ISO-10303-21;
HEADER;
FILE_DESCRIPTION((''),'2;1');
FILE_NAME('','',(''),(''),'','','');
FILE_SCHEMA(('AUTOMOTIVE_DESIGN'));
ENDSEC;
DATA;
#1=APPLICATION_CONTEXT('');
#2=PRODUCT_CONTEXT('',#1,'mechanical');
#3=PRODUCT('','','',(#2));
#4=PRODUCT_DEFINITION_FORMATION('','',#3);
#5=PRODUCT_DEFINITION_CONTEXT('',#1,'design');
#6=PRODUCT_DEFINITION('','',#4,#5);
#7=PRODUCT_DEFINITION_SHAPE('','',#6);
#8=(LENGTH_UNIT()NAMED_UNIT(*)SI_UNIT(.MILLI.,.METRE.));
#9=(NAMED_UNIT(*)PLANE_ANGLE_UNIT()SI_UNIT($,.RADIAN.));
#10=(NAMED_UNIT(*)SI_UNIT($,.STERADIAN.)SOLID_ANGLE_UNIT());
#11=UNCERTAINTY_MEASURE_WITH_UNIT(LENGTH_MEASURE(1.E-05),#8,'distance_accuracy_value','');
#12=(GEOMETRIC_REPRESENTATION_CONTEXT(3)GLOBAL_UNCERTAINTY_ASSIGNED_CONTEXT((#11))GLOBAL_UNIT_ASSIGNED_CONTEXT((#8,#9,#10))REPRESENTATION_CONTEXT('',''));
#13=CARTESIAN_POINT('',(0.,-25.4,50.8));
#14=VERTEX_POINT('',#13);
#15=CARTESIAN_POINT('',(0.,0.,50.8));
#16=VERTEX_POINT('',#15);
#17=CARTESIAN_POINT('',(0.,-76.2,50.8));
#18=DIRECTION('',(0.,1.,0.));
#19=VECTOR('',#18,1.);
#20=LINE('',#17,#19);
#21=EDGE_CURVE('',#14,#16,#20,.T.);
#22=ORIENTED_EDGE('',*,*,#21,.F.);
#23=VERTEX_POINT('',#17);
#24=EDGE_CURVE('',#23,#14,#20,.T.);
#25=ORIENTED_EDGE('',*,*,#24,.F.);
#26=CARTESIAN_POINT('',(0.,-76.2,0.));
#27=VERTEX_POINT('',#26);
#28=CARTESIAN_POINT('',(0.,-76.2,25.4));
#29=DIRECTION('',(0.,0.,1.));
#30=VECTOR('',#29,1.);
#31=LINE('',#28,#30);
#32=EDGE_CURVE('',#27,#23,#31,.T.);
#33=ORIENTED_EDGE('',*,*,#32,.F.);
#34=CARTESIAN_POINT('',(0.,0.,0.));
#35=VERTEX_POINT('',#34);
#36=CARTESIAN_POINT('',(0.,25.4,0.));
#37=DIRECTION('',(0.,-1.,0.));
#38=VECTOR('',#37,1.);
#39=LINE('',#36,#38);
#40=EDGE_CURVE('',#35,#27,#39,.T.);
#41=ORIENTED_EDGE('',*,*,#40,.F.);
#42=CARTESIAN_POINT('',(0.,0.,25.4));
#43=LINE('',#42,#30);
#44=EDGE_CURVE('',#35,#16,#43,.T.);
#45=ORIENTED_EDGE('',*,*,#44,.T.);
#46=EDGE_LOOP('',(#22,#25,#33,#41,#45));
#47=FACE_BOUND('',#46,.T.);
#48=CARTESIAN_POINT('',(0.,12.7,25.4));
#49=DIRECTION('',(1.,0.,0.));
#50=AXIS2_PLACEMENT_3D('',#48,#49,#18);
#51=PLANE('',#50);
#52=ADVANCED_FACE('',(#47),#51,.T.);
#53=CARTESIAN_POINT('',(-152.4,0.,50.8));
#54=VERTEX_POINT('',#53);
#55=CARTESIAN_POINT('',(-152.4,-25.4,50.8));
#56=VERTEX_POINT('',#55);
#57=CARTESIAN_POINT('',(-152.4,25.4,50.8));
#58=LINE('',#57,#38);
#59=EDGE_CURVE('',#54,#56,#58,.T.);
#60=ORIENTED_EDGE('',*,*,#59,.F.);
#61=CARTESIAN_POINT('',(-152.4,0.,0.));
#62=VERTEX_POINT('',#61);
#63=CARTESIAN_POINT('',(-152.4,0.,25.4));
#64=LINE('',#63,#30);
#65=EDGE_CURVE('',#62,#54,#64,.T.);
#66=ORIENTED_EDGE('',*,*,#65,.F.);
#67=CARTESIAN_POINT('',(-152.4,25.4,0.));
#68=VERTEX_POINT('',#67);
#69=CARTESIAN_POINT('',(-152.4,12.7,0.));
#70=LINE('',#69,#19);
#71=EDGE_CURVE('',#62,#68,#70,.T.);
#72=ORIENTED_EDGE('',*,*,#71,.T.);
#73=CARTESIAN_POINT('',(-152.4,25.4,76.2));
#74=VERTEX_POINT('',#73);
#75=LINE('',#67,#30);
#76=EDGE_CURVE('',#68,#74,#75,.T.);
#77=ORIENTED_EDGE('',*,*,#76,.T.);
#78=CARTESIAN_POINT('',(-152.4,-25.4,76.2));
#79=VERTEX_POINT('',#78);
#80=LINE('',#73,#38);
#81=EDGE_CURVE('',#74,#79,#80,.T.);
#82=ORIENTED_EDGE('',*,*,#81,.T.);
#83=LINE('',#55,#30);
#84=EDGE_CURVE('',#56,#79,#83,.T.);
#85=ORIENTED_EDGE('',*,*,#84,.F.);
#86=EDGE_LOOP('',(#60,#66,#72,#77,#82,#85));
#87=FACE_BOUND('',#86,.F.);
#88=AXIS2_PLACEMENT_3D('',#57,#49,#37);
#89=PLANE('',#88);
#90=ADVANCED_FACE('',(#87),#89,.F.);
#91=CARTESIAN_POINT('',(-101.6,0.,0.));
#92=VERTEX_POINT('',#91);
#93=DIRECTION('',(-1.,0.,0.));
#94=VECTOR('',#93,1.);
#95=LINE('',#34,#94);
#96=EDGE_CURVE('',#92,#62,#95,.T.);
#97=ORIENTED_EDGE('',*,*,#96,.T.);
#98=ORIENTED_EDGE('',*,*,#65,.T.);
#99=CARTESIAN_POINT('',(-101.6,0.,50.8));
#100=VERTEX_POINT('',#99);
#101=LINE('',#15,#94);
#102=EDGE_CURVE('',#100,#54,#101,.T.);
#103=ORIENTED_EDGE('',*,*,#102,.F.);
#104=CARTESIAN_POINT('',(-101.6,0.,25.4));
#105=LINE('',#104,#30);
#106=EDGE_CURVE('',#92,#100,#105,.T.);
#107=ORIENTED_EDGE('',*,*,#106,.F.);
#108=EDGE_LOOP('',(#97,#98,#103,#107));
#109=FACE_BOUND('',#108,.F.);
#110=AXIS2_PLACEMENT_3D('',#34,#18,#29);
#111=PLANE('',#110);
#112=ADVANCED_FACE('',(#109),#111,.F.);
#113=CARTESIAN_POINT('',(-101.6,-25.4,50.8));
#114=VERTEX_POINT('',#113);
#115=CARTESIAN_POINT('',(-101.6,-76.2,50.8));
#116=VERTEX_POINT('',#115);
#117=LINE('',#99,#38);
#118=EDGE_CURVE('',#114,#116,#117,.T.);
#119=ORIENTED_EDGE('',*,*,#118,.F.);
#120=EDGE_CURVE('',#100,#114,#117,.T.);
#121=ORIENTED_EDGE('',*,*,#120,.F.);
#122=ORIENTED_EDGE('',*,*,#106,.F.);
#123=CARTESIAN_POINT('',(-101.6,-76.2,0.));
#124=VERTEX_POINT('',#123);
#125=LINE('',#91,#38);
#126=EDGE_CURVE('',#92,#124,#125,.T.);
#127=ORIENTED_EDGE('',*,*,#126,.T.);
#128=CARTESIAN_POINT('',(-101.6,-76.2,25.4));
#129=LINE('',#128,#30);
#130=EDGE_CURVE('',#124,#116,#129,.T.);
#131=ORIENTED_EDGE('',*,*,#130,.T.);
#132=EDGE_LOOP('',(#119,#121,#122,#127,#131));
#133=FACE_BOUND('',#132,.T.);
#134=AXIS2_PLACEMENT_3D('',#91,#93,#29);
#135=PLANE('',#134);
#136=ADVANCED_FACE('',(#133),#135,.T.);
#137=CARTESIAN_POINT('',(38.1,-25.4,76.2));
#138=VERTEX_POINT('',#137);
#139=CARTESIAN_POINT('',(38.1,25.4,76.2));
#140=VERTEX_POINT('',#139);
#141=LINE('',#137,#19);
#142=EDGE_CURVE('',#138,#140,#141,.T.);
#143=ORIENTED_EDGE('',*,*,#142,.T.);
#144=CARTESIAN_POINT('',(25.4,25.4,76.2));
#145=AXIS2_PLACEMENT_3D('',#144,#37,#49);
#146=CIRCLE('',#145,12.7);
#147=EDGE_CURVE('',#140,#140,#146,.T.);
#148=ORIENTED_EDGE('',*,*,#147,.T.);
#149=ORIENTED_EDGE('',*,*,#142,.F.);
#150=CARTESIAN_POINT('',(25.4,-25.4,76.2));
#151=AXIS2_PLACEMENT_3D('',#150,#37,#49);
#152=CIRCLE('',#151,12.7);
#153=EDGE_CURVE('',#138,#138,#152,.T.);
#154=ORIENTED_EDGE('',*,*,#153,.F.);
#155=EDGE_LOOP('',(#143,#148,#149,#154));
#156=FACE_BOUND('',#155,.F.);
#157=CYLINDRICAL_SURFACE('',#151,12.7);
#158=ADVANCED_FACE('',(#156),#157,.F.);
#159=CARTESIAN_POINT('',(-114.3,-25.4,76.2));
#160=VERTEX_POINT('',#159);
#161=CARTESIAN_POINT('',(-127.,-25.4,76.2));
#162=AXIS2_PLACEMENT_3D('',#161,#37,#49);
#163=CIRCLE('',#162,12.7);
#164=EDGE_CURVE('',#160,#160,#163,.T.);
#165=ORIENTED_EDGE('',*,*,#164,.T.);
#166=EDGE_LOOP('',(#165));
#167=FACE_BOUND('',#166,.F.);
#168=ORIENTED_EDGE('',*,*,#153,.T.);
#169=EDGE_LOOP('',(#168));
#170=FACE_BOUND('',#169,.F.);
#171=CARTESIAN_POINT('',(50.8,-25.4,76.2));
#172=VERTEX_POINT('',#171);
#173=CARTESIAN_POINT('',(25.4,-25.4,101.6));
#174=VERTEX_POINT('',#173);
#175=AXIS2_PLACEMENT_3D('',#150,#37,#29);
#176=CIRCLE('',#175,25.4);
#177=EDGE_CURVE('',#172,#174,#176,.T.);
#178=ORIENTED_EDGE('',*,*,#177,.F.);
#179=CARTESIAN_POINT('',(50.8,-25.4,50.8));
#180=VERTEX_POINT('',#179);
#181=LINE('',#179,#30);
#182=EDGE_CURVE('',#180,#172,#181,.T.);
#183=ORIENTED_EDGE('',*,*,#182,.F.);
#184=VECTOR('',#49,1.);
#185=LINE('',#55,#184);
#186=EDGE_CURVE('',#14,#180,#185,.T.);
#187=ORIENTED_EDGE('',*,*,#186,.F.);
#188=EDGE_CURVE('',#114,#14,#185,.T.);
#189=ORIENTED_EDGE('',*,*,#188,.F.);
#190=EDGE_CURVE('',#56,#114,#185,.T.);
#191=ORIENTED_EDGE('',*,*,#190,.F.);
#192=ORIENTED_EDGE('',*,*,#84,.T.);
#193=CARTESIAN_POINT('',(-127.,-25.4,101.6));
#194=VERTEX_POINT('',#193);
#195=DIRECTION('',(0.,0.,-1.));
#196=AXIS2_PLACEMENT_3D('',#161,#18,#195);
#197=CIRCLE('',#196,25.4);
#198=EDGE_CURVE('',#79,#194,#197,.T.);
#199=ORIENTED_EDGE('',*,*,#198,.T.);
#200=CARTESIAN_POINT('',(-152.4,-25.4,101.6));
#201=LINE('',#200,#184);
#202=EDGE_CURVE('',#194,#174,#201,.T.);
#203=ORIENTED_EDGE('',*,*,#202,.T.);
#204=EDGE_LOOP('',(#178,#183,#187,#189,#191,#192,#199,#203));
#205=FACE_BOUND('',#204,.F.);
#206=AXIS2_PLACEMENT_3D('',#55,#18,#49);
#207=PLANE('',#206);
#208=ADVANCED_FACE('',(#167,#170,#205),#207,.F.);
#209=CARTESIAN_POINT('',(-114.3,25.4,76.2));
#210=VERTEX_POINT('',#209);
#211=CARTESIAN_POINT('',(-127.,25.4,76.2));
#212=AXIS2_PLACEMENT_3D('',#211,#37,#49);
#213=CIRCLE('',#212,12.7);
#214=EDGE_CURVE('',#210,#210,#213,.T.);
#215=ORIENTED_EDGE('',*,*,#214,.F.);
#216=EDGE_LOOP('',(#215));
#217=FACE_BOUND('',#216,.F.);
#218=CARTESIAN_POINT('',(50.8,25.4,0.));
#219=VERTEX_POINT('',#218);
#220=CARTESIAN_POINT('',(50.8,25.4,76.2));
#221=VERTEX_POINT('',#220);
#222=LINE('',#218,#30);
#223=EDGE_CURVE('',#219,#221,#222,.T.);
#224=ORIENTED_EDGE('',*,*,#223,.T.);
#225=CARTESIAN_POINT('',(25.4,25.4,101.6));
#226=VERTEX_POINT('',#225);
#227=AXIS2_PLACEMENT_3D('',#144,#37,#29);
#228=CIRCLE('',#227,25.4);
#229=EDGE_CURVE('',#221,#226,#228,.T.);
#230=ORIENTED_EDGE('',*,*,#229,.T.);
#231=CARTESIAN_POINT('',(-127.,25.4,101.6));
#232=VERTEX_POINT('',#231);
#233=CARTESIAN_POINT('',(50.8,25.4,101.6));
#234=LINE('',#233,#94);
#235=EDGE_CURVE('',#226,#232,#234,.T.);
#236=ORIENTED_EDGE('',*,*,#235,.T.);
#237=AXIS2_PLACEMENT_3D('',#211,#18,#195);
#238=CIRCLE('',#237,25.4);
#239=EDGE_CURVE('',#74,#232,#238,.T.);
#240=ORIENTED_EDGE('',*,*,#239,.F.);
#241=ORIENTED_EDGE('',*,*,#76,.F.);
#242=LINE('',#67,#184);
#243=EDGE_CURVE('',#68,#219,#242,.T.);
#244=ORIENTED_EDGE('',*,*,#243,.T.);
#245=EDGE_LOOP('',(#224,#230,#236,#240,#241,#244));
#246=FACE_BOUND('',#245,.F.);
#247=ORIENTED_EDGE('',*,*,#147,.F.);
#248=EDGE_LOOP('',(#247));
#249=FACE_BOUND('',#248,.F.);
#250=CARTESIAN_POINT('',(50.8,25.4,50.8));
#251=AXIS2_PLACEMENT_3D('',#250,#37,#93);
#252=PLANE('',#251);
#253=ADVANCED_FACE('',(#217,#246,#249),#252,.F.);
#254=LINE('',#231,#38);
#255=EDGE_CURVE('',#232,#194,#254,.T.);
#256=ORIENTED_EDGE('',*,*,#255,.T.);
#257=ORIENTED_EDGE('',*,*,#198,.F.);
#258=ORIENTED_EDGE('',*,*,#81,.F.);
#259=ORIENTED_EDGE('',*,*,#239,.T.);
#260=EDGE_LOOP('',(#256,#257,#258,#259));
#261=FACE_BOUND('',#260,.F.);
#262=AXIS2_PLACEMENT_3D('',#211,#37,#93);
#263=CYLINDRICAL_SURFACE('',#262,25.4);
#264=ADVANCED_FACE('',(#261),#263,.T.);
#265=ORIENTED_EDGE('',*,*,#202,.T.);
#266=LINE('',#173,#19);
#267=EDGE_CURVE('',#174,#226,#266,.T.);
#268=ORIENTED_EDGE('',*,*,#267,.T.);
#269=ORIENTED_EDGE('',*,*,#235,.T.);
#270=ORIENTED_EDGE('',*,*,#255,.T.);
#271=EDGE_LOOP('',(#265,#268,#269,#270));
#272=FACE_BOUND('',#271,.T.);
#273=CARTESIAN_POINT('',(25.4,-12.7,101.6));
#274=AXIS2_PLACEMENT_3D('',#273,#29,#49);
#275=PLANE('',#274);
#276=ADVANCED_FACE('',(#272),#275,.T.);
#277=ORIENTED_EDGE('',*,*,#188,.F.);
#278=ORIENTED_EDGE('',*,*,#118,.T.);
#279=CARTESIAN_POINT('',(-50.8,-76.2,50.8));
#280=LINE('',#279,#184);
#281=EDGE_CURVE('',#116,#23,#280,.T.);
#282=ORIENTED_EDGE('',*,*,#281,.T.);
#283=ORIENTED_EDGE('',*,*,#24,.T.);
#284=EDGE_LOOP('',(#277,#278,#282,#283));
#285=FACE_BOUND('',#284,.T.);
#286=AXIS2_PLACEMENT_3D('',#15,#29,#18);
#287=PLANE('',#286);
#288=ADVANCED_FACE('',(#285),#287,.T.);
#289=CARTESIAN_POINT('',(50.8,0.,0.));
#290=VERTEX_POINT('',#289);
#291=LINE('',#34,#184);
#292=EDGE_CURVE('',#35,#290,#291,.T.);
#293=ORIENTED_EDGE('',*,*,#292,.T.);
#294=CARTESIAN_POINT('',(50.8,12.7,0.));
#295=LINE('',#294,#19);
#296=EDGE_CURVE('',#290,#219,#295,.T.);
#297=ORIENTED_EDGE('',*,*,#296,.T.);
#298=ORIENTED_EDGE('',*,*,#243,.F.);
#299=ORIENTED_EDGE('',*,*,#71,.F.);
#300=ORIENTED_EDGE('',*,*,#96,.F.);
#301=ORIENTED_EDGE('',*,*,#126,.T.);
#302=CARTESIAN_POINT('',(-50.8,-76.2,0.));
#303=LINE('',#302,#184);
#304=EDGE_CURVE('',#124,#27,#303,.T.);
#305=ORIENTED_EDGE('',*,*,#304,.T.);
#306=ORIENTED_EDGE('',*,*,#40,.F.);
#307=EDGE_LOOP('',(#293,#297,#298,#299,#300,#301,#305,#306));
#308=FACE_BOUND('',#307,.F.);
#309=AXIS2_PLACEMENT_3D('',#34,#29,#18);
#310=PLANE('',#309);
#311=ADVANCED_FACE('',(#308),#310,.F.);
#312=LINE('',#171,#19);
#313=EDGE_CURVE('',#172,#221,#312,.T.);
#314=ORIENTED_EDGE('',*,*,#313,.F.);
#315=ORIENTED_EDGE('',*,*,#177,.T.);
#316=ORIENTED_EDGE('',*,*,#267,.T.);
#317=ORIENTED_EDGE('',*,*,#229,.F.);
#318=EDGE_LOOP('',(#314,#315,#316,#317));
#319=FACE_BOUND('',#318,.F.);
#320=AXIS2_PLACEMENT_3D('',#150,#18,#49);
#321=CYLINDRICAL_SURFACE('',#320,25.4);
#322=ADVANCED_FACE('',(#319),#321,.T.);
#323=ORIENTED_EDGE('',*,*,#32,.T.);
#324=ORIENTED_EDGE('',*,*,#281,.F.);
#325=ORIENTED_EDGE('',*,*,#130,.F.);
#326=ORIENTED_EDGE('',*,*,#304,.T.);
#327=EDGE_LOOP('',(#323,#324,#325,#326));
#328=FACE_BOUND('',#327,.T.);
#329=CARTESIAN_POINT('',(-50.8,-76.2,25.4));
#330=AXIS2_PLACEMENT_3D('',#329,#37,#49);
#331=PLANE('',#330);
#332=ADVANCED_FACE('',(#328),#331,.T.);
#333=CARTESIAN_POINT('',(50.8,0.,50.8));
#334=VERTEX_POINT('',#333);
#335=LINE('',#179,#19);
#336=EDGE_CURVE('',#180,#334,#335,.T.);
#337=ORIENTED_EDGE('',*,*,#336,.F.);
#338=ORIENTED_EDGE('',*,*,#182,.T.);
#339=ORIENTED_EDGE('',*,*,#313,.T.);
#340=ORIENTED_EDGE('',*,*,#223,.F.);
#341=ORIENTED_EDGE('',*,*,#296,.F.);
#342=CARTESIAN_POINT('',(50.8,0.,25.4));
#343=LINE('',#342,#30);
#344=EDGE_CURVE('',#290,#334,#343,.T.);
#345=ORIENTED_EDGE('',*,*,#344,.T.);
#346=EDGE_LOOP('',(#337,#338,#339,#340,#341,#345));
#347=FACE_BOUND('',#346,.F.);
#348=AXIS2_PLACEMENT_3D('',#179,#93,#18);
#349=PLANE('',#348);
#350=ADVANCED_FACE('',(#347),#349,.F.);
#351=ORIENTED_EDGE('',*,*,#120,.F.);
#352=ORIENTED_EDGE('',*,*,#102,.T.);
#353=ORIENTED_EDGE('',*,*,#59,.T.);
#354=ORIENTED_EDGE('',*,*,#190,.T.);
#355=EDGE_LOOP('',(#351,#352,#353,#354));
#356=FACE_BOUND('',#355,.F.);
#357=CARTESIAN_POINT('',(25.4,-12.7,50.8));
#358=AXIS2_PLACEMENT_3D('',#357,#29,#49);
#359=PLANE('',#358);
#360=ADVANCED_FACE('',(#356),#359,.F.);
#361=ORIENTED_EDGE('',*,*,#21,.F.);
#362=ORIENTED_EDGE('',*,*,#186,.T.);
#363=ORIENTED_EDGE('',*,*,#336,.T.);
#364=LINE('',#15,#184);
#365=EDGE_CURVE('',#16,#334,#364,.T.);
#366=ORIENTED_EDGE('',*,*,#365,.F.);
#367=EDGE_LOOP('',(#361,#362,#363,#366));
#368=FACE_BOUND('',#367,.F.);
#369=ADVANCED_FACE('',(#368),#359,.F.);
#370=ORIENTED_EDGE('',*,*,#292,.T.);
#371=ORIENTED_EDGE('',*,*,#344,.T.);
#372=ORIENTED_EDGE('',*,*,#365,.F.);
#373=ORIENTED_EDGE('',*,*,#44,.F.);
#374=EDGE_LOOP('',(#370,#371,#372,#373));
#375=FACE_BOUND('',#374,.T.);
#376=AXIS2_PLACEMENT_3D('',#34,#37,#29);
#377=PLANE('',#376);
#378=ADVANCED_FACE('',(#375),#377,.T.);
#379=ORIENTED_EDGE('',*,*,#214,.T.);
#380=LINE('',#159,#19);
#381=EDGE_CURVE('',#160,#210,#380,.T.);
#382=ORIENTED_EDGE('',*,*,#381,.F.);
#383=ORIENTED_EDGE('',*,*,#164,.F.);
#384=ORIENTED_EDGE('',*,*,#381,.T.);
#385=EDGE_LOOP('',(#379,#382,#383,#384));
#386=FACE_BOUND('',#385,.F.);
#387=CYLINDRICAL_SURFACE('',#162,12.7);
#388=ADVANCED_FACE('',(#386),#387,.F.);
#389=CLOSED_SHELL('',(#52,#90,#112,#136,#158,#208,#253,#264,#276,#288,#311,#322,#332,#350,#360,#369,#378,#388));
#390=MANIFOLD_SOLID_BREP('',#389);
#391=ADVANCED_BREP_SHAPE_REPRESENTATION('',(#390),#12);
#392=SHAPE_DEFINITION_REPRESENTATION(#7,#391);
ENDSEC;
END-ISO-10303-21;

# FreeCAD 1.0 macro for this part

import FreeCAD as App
import Part
import Sketcher

V = App.Vector
Q = App.Units.Quantity


def edges_at(feature, points):
    """Names of the edges that pass closest to the given points."""
    edges = feature.Shape.Edges
    near = lambda p: min(range(len(edges)), key=lambda i: edges[i].distToShape(Part.Vertex(*p))[0])
    return sorted({f"Edge{near(p) + 1}" for p in points})

doc = App.newDocument("Part")
body = doc.addObject("PartDesign::Body", "Body")

sketch1 = doc.addObject("Sketcher::SketchObject", "Sketch")
body.addObject(sketch1)
sketch1.AttachmentSupport = (doc.XZ_Plane, [""])
sketch1.MapMode = "FlatFace"
sketch1.addGeometry([
    Part.LineSegment(V(-102, 51, 0), V(-102, 0, 0)),
    Part.LineSegment(V(-102, 0, 0), V(0, 0, 0)),
    Part.LineSegment(V(0, 0, 0), V(0, 51, 0)),
    Part.LineSegment(V(0, 51, 0), V(-102, 51, 0)),
], False)
sketch1.addConstraint([
    Sketcher.Constraint("Coincident", 0, 2, 1, 1),
    Sketcher.Constraint("Coincident", 1, 2, 2, 1),
    Sketcher.Constraint("Coincident", 2, 2, 3, 1),
    Sketcher.Constraint("Coincident", 3, 2, 0, 1),
    Sketcher.Constraint("Vertical", 0),
    Sketcher.Constraint("Horizontal", 1),
    Sketcher.Constraint("Vertical", 2),
    Sketcher.Constraint("Horizontal", 3),
    Sketcher.Constraint("Coincident", 1, 2, -1, 1),
    Sketcher.Constraint("DistanceX", 1, 1, 1, 2, Q("4 in")),
    Sketcher.Constraint("DistanceY", 0, 2, 0, 1, Q("2 in")),
])
pad1 = doc.addObject("PartDesign::Pad", "Pad")
body.addObject(pad1)
pad1.Profile = sketch1
pad1.Length = Q("3 in")

sketch2 = doc.addObject("Sketcher::SketchObject", "Sketch001")
body.addObject(sketch2)
sketch2.AttachmentSupport = (doc.YZ_Plane, [""])
sketch2.MapMode = "FlatFace"
sketch2.addGeometry([
    Part.LineSegment(V(0, 51, 0), V(0, 0, 0)),
    Part.LineSegment(V(0, 0, 0), V(25, 0, 0)),
    Part.LineSegment(V(25, 0, 0), V(25, 51, 0)),
    Part.LineSegment(V(25, 51, 0), V(0, 51, 0)),
], False)
sketch2.addConstraint([
    Sketcher.Constraint("Coincident", 0, 2, 1, 1),
    Sketcher.Constraint("Coincident", 1, 2, 2, 1),
    Sketcher.Constraint("Coincident", 2, 2, 3, 1),
    Sketcher.Constraint("Coincident", 3, 2, 0, 1),
    Sketcher.Constraint("Vertical", 0),
    Sketcher.Constraint("Horizontal", 1),
    Sketcher.Constraint("Vertical", 2),
    Sketcher.Constraint("Horizontal", 3),
    Sketcher.Constraint("Coincident", 0, 2, -1, 1),
    Sketcher.Constraint("DistanceX", 1, 1, 1, 2, Q("1 in")),
    Sketcher.Constraint("DistanceY", 0, 2, 0, 1, Q("2 in")),
])
pad2 = doc.addObject("PartDesign::Pad", "Pad001")
body.addObject(pad2)
pad2.Profile = sketch2
pad2.Length = Q("6 in")
pad2.Reversed = True

sketch3 = doc.addObject("Sketcher::SketchObject", "Sketch002")
body.addObject(sketch3)
sketch3.AttachmentSupport = (doc.YZ_Plane, [""])
sketch3.MapMode = "FlatFace"
sketch3.addGeometry([
    Part.LineSegment(V(0, 51, 0), V(0, 0, 0)),
    Part.LineSegment(V(0, 0, 0), V(25, 0, 0)),
    Part.LineSegment(V(25, 0, 0), V(25, 51, 0)),
    Part.LineSegment(V(25, 51, 0), V(0, 51, 0)),
], False)
sketch3.addConstraint([
    Sketcher.Constraint("Coincident", 0, 2, 1, 1),
    Sketcher.Constraint("Coincident", 1, 2, 2, 1),
    Sketcher.Constraint("Coincident", 2, 2, 3, 1),
    Sketcher.Constraint("Coincident", 3, 2, 0, 1),
    Sketcher.Constraint("Vertical", 0),
    Sketcher.Constraint("Horizontal", 1),
    Sketcher.Constraint("Vertical", 2),
    Sketcher.Constraint("Horizontal", 3),
    Sketcher.Constraint("Coincident", 0, 2, -1, 1),
    Sketcher.Constraint("DistanceX", 1, 1, 1, 2, Q("1 in")),
    Sketcher.Constraint("DistanceY", 0, 2, 0, 1, Q("2 in")),
])
pad3 = doc.addObject("PartDesign::Pad", "Pad002")
body.addObject(pad3)
pad3.Profile = sketch3
pad3.Length = Q("2 in")

sketch4 = doc.addObject("Sketcher::SketchObject", "Sketch003")
body.addObject(sketch4)
sketch4.AttachmentSupport = (doc.XY_Plane, [""])
sketch4.MapMode = "FlatFace"
sketch4.AttachmentOffset = App.Placement(V(0, 0, 2 * 25.4), App.Rotation())
sketch4.addGeometry([
    Part.LineSegment(V(51, -25, 0), V(51, 25, 0)),
    Part.LineSegment(V(51, 25, 0), V(-152, 25, 0)),
    Part.LineSegment(V(-152, 25, 0), V(-152, -25, 0)),
    Part.LineSegment(V(-152, -25, 0), V(51, -25, 0)),
], False)
sketch4.addConstraint([
    Sketcher.Constraint("Coincident", 0, 2, 1, 1),
    Sketcher.Constraint("Coincident", 1, 2, 2, 1),
    Sketcher.Constraint("Coincident", 2, 2, 3, 1),
    Sketcher.Constraint("Coincident", 3, 2, 0, 1),
    Sketcher.Constraint("Vertical", 0),
    Sketcher.Constraint("Horizontal", 1),
    Sketcher.Constraint("Vertical", 2),
    Sketcher.Constraint("Horizontal", 3),
    Sketcher.Constraint("DistanceX", 1, 2, 1, 1, Q("8 in")),
    Sketcher.Constraint("DistanceY", 0, 1, 0, 2, Q("2 in")),
    Sketcher.Constraint("DistanceX", -1, 1, 0, 2, Q("2 in")),
    Sketcher.Constraint("DistanceY", -1, 1, 0, 2, Q("1 in")),
])
pad4 = doc.addObject("PartDesign::Pad", "Pad003")
body.addObject(pad4)
pad4.Profile = sketch4
pad4.Length = Q("2 in")
doc.recompute()

fillet = doc.addObject("PartDesign::Fillet", "Fillet")
body.addObject(fillet)
fillet.Base = (pad4, edges_at(pad4, [(50.8, 0, 101.6), (-152.4, 0, 101.6)]))
fillet.Radius = Q("1 in")

sketch5 = doc.addObject("Sketcher::SketchObject", "Sketch004")
body.addObject(sketch5)
sketch5.AttachmentSupport = (doc.XZ_Plane, [""])
sketch5.MapMode = "FlatFace"
sketch5.AttachmentOffset = App.Placement(V(0, 0, 1 * 25.4), App.Rotation())
sketch5.addGeometry(Part.Circle(V(-127, 76, 0), V(0, 0, 1), 13), False)
sketch5.addConstraint([
    Sketcher.Constraint("Diameter", 0, Q("1 in")),
    Sketcher.Constraint("DistanceX", 0, 3, -1, 1, Q("5 in")),
    Sketcher.Constraint("DistanceY", -1, 1, 0, 3, Q("3 in")),
])
pocket1 = doc.addObject("PartDesign::Pocket", "Pocket")
body.addObject(pocket1)
pocket1.Profile = sketch5
pocket1.Length = Q("2 in")

sketch6 = doc.addObject("Sketcher::SketchObject", "Sketch005")
body.addObject(sketch6)
sketch6.AttachmentSupport = (doc.XZ_Plane, [""])
sketch6.MapMode = "FlatFace"
sketch6.AttachmentOffset = App.Placement(V(0, 0, 1 * 25.4), App.Rotation())
sketch6.addGeometry(Part.Circle(V(25, 76, 0), V(0, 0, 1), 13), False)
sketch6.addConstraint([
    Sketcher.Constraint("Diameter", 0, Q("1 in")),
    Sketcher.Constraint("DistanceX", -1, 1, 0, 3, Q("1 in")),
    Sketcher.Constraint("DistanceY", -1, 1, 0, 3, Q("3 in")),
])
pocket2 = doc.addObject("PartDesign::Pocket", "Pocket001")
body.addObject(pocket2)
pocket2.Profile = sketch6
pocket2.Length = Q("2 in")

doc.recompute()
